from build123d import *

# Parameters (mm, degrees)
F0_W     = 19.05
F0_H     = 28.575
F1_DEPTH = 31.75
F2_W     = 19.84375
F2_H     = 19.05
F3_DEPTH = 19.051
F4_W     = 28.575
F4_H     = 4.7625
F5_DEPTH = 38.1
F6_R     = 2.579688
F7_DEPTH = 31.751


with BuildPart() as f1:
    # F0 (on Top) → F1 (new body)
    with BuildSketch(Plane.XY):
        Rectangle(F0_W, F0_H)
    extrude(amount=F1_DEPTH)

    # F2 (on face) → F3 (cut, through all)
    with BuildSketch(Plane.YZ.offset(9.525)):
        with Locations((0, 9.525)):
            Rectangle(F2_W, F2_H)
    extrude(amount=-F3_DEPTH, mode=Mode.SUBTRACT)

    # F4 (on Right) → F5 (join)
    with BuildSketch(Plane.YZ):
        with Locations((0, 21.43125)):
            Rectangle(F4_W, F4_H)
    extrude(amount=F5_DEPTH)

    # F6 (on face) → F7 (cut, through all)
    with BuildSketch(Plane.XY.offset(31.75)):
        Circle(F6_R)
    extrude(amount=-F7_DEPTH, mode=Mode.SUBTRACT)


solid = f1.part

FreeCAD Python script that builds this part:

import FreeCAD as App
import Part
import Sketcher

V = App.Vector
Q = App.Units.Quantity

doc = App.newDocument("Part")
body = doc.addObject("PartDesign::Body", "Body")

sketch1 = doc.addObject("Sketcher::SketchObject", "Sketch")
body.addObject(sketch1)
sketch1.AttachmentSupport = (doc.XY_Plane, [""])
sketch1.MapMode = "FlatFace"
sketch1.addGeometry(Part.LineSegment(V(-10, 14, 0), V(-10, -14, 0)), False)
sketch1.addGeometry(Part.LineSegment(V(-10, -14, 0), V(10, -14, 0)), False)
sketch1.addGeometry(Part.LineSegment(V(10, -14, 0), V(10, 14, 0)), False)
sketch1.addGeometry(Part.LineSegment(V(10, 14, 0), V(-10, 14, 0)), False)
sketch1.addConstraint(Sketcher.Constraint("Coincident", 0, 2, 1, 1))
sketch1.addConstraint(Sketcher.Constraint("Coincident", 1, 2, 2, 1))
sketch1.addConstraint(Sketcher.Constraint("Coincident", 2, 2, 3, 1))
sketch1.addConstraint(Sketcher.Constraint("Coincident", 3, 2, 0, 1))
sketch1.addConstraint(Sketcher.Constraint("Vertical", 0))
sketch1.addConstraint(Sketcher.Constraint("Horizontal", 1))
sketch1.addConstraint(Sketcher.Constraint("Vertical", 2))
sketch1.addConstraint(Sketcher.Constraint("Horizontal", 3))
sketch1.addConstraint(Sketcher.Constraint("Symmetric", 0, 2, 2, 2, -1, 1))
sketch1.addConstraint(Sketcher.Constraint("DistanceX", 1, 1, 1, 2, Q("0.75 in")))
sketch1.addConstraint(Sketcher.Constraint("DistanceY", 0, 2, 0, 1, Q("1.125 in")))
pad1 = doc.addObject("PartDesign::Pad", "Pad")
body.addObject(pad1)
pad1.Profile = sketch1
pad1.Length = Q("1.25 in")

sketch2 = doc.addObject("Sketcher::SketchObject", "Sketch001")
body.addObject(sketch2)
sketch2.AttachmentSupport = (doc.YZ_Plane, [""])
sketch2.MapMode = "FlatFace"
sketch2.AttachmentOffset = App.Placement(V(0, 0, 0.375 * 25.4), App.Rotation())
sketch2.addGeometry(Part.LineSegment(V(-10, 19, 0), V(-10, 0, 0)), False)
sketch2.addGeometry(Part.LineSegment(V(-10, 0, 0), V(10, 0, 0)), False)
sketch2.addGeometry(Part.LineSegment(V(10, 0, 0), V(10, 19, 0)), False)
sketch2.addGeometry(Part.LineSegment(V(10, 19, 0), V(-10, 19, 0)), False)
sketch2.addConstraint(Sketcher.Constraint("Coincident", 0, 2, 1, 1))
sketch2.addConstraint(Sketcher.Constraint("Coincident", 1, 2, 2, 1))
sketch2.addConstraint(Sketcher.Constraint("Coincident", 2, 2, 3, 1))
sketch2.addConstraint(Sketcher.Constraint("Coincident", 3, 2, 0, 1))
sketch2.addConstraint(Sketcher.Constraint("Vertical", 0))
sketch2.addConstraint(Sketcher.Constraint("Horizontal", 1))
sketch2.addConstraint(Sketcher.Constraint("Vertical", 2))
sketch2.addConstraint(Sketcher.Constraint("Horizontal", 3))
sketch2.addConstraint(Sketcher.Constraint("Symmetric", 0, 2, 1, 2, -1, 1))
sketch2.addConstraint(Sketcher.Constraint("DistanceY", 0, 2, 0, 1, Q("0.75 in")))
sketch2.addConstraint(Sketcher.Constraint("DistanceX", 1, 1, 1, 2, Q("0.78125 in")))
pocket1 = doc.addObject("PartDesign::Pocket", "Pocket")
body.addObject(pocket1)
pocket1.Profile = sketch2
pocket1.Type = "ThroughAll"

sketch3 = doc.addObject("Sketcher::SketchObject", "Sketch002")
body.addObject(sketch3)
sketch3.AttachmentSupport = (doc.YZ_Plane, [""])
sketch3.MapMode = "FlatFace"
sketch3.addGeometry(Part.LineSegment(V(-14.3, 23.8, 0), V(-14.3, 19.1, 0)), False)
sketch3.addGeometry(Part.LineSegment(V(-14.3, 19.1, 0), V(14.3, 19.1, 0)), False)
sketch3.addGeometry(Part.LineSegment(V(14.3, 19.1, 0), V(14.3, 23.8, 0)), False)
sketch3.addGeometry(Part.LineSegment(V(14.3, 23.8, 0), V(-14.3, 23.8, 0)), False)
sketch3.addConstraint(Sketcher.Constraint("Coincident", 0, 2, 1, 1))
sketch3.addConstraint(Sketcher.Constraint("Coincident", 1, 2, 2, 1))
sketch3.addConstraint(Sketcher.Constraint("Coincident", 2, 2, 3, 1))
sketch3.addConstraint(Sketcher.Constraint("Coincident", 3, 2, 0, 1))
sketch3.addConstraint(Sketcher.Constraint("Vertical", 0))
sketch3.addConstraint(Sketcher.Constraint("Horizontal", 1))
sketch3.addConstraint(Sketcher.Constraint("Vertical", 2))
sketch3.addConstraint(Sketcher.Constraint("Horizontal", 3))
sketch3.addConstraint(Sketcher.Constraint("DistanceX", 1, 1, 1, 2, Q("1.125 in")))
sketch3.addConstraint(Sketcher.Constraint("DistanceY", 0, 2, 0, 1, Q("0.1875 in")))
sketch3.addConstraint(Sketcher.Constraint("DistanceY", -1, 1, 0, 2, Q("0.75 in")))
sketch3.addConstraint(Sketcher.Constraint("DistanceX", 0, 2, -1, 1, Q("0.5625 in")))
pad2 = doc.addObject("PartDesign::Pad", "Pad001")
body.addObject(pad2)
pad2.Profile = sketch3
pad2.Length = Q("1.5 in")

sketch4 = doc.addObject("Sketcher::SketchObject", "Sketch003")
body.addObject(sketch4)
sketch4.AttachmentSupport = (doc.XY_Plane, [""])
sketch4.MapMode = "FlatFace"
sketch4.AttachmentOffset = App.Placement(V(0, 0, 1.25 * 25.4), App.Rotation())
sketch4.addGeometry(Part.Circle(V(0, 0, 0), V(0, 0, 1), 2.6), False)
sketch4.addConstraint(Sketcher.Constraint("Coincident", 0, 3, -1, 1))
sketch4.addConstraint(Sketcher.Constraint("Diameter", 0, Q("0.203125 in")))
pocket2 = doc.addObject("PartDesign::Pocket", "Pocket001")
body.addObject(pocket2)
pocket2.Profile = sketch4
pocket2.Type = "ThroughAll"

doc.recompute()
